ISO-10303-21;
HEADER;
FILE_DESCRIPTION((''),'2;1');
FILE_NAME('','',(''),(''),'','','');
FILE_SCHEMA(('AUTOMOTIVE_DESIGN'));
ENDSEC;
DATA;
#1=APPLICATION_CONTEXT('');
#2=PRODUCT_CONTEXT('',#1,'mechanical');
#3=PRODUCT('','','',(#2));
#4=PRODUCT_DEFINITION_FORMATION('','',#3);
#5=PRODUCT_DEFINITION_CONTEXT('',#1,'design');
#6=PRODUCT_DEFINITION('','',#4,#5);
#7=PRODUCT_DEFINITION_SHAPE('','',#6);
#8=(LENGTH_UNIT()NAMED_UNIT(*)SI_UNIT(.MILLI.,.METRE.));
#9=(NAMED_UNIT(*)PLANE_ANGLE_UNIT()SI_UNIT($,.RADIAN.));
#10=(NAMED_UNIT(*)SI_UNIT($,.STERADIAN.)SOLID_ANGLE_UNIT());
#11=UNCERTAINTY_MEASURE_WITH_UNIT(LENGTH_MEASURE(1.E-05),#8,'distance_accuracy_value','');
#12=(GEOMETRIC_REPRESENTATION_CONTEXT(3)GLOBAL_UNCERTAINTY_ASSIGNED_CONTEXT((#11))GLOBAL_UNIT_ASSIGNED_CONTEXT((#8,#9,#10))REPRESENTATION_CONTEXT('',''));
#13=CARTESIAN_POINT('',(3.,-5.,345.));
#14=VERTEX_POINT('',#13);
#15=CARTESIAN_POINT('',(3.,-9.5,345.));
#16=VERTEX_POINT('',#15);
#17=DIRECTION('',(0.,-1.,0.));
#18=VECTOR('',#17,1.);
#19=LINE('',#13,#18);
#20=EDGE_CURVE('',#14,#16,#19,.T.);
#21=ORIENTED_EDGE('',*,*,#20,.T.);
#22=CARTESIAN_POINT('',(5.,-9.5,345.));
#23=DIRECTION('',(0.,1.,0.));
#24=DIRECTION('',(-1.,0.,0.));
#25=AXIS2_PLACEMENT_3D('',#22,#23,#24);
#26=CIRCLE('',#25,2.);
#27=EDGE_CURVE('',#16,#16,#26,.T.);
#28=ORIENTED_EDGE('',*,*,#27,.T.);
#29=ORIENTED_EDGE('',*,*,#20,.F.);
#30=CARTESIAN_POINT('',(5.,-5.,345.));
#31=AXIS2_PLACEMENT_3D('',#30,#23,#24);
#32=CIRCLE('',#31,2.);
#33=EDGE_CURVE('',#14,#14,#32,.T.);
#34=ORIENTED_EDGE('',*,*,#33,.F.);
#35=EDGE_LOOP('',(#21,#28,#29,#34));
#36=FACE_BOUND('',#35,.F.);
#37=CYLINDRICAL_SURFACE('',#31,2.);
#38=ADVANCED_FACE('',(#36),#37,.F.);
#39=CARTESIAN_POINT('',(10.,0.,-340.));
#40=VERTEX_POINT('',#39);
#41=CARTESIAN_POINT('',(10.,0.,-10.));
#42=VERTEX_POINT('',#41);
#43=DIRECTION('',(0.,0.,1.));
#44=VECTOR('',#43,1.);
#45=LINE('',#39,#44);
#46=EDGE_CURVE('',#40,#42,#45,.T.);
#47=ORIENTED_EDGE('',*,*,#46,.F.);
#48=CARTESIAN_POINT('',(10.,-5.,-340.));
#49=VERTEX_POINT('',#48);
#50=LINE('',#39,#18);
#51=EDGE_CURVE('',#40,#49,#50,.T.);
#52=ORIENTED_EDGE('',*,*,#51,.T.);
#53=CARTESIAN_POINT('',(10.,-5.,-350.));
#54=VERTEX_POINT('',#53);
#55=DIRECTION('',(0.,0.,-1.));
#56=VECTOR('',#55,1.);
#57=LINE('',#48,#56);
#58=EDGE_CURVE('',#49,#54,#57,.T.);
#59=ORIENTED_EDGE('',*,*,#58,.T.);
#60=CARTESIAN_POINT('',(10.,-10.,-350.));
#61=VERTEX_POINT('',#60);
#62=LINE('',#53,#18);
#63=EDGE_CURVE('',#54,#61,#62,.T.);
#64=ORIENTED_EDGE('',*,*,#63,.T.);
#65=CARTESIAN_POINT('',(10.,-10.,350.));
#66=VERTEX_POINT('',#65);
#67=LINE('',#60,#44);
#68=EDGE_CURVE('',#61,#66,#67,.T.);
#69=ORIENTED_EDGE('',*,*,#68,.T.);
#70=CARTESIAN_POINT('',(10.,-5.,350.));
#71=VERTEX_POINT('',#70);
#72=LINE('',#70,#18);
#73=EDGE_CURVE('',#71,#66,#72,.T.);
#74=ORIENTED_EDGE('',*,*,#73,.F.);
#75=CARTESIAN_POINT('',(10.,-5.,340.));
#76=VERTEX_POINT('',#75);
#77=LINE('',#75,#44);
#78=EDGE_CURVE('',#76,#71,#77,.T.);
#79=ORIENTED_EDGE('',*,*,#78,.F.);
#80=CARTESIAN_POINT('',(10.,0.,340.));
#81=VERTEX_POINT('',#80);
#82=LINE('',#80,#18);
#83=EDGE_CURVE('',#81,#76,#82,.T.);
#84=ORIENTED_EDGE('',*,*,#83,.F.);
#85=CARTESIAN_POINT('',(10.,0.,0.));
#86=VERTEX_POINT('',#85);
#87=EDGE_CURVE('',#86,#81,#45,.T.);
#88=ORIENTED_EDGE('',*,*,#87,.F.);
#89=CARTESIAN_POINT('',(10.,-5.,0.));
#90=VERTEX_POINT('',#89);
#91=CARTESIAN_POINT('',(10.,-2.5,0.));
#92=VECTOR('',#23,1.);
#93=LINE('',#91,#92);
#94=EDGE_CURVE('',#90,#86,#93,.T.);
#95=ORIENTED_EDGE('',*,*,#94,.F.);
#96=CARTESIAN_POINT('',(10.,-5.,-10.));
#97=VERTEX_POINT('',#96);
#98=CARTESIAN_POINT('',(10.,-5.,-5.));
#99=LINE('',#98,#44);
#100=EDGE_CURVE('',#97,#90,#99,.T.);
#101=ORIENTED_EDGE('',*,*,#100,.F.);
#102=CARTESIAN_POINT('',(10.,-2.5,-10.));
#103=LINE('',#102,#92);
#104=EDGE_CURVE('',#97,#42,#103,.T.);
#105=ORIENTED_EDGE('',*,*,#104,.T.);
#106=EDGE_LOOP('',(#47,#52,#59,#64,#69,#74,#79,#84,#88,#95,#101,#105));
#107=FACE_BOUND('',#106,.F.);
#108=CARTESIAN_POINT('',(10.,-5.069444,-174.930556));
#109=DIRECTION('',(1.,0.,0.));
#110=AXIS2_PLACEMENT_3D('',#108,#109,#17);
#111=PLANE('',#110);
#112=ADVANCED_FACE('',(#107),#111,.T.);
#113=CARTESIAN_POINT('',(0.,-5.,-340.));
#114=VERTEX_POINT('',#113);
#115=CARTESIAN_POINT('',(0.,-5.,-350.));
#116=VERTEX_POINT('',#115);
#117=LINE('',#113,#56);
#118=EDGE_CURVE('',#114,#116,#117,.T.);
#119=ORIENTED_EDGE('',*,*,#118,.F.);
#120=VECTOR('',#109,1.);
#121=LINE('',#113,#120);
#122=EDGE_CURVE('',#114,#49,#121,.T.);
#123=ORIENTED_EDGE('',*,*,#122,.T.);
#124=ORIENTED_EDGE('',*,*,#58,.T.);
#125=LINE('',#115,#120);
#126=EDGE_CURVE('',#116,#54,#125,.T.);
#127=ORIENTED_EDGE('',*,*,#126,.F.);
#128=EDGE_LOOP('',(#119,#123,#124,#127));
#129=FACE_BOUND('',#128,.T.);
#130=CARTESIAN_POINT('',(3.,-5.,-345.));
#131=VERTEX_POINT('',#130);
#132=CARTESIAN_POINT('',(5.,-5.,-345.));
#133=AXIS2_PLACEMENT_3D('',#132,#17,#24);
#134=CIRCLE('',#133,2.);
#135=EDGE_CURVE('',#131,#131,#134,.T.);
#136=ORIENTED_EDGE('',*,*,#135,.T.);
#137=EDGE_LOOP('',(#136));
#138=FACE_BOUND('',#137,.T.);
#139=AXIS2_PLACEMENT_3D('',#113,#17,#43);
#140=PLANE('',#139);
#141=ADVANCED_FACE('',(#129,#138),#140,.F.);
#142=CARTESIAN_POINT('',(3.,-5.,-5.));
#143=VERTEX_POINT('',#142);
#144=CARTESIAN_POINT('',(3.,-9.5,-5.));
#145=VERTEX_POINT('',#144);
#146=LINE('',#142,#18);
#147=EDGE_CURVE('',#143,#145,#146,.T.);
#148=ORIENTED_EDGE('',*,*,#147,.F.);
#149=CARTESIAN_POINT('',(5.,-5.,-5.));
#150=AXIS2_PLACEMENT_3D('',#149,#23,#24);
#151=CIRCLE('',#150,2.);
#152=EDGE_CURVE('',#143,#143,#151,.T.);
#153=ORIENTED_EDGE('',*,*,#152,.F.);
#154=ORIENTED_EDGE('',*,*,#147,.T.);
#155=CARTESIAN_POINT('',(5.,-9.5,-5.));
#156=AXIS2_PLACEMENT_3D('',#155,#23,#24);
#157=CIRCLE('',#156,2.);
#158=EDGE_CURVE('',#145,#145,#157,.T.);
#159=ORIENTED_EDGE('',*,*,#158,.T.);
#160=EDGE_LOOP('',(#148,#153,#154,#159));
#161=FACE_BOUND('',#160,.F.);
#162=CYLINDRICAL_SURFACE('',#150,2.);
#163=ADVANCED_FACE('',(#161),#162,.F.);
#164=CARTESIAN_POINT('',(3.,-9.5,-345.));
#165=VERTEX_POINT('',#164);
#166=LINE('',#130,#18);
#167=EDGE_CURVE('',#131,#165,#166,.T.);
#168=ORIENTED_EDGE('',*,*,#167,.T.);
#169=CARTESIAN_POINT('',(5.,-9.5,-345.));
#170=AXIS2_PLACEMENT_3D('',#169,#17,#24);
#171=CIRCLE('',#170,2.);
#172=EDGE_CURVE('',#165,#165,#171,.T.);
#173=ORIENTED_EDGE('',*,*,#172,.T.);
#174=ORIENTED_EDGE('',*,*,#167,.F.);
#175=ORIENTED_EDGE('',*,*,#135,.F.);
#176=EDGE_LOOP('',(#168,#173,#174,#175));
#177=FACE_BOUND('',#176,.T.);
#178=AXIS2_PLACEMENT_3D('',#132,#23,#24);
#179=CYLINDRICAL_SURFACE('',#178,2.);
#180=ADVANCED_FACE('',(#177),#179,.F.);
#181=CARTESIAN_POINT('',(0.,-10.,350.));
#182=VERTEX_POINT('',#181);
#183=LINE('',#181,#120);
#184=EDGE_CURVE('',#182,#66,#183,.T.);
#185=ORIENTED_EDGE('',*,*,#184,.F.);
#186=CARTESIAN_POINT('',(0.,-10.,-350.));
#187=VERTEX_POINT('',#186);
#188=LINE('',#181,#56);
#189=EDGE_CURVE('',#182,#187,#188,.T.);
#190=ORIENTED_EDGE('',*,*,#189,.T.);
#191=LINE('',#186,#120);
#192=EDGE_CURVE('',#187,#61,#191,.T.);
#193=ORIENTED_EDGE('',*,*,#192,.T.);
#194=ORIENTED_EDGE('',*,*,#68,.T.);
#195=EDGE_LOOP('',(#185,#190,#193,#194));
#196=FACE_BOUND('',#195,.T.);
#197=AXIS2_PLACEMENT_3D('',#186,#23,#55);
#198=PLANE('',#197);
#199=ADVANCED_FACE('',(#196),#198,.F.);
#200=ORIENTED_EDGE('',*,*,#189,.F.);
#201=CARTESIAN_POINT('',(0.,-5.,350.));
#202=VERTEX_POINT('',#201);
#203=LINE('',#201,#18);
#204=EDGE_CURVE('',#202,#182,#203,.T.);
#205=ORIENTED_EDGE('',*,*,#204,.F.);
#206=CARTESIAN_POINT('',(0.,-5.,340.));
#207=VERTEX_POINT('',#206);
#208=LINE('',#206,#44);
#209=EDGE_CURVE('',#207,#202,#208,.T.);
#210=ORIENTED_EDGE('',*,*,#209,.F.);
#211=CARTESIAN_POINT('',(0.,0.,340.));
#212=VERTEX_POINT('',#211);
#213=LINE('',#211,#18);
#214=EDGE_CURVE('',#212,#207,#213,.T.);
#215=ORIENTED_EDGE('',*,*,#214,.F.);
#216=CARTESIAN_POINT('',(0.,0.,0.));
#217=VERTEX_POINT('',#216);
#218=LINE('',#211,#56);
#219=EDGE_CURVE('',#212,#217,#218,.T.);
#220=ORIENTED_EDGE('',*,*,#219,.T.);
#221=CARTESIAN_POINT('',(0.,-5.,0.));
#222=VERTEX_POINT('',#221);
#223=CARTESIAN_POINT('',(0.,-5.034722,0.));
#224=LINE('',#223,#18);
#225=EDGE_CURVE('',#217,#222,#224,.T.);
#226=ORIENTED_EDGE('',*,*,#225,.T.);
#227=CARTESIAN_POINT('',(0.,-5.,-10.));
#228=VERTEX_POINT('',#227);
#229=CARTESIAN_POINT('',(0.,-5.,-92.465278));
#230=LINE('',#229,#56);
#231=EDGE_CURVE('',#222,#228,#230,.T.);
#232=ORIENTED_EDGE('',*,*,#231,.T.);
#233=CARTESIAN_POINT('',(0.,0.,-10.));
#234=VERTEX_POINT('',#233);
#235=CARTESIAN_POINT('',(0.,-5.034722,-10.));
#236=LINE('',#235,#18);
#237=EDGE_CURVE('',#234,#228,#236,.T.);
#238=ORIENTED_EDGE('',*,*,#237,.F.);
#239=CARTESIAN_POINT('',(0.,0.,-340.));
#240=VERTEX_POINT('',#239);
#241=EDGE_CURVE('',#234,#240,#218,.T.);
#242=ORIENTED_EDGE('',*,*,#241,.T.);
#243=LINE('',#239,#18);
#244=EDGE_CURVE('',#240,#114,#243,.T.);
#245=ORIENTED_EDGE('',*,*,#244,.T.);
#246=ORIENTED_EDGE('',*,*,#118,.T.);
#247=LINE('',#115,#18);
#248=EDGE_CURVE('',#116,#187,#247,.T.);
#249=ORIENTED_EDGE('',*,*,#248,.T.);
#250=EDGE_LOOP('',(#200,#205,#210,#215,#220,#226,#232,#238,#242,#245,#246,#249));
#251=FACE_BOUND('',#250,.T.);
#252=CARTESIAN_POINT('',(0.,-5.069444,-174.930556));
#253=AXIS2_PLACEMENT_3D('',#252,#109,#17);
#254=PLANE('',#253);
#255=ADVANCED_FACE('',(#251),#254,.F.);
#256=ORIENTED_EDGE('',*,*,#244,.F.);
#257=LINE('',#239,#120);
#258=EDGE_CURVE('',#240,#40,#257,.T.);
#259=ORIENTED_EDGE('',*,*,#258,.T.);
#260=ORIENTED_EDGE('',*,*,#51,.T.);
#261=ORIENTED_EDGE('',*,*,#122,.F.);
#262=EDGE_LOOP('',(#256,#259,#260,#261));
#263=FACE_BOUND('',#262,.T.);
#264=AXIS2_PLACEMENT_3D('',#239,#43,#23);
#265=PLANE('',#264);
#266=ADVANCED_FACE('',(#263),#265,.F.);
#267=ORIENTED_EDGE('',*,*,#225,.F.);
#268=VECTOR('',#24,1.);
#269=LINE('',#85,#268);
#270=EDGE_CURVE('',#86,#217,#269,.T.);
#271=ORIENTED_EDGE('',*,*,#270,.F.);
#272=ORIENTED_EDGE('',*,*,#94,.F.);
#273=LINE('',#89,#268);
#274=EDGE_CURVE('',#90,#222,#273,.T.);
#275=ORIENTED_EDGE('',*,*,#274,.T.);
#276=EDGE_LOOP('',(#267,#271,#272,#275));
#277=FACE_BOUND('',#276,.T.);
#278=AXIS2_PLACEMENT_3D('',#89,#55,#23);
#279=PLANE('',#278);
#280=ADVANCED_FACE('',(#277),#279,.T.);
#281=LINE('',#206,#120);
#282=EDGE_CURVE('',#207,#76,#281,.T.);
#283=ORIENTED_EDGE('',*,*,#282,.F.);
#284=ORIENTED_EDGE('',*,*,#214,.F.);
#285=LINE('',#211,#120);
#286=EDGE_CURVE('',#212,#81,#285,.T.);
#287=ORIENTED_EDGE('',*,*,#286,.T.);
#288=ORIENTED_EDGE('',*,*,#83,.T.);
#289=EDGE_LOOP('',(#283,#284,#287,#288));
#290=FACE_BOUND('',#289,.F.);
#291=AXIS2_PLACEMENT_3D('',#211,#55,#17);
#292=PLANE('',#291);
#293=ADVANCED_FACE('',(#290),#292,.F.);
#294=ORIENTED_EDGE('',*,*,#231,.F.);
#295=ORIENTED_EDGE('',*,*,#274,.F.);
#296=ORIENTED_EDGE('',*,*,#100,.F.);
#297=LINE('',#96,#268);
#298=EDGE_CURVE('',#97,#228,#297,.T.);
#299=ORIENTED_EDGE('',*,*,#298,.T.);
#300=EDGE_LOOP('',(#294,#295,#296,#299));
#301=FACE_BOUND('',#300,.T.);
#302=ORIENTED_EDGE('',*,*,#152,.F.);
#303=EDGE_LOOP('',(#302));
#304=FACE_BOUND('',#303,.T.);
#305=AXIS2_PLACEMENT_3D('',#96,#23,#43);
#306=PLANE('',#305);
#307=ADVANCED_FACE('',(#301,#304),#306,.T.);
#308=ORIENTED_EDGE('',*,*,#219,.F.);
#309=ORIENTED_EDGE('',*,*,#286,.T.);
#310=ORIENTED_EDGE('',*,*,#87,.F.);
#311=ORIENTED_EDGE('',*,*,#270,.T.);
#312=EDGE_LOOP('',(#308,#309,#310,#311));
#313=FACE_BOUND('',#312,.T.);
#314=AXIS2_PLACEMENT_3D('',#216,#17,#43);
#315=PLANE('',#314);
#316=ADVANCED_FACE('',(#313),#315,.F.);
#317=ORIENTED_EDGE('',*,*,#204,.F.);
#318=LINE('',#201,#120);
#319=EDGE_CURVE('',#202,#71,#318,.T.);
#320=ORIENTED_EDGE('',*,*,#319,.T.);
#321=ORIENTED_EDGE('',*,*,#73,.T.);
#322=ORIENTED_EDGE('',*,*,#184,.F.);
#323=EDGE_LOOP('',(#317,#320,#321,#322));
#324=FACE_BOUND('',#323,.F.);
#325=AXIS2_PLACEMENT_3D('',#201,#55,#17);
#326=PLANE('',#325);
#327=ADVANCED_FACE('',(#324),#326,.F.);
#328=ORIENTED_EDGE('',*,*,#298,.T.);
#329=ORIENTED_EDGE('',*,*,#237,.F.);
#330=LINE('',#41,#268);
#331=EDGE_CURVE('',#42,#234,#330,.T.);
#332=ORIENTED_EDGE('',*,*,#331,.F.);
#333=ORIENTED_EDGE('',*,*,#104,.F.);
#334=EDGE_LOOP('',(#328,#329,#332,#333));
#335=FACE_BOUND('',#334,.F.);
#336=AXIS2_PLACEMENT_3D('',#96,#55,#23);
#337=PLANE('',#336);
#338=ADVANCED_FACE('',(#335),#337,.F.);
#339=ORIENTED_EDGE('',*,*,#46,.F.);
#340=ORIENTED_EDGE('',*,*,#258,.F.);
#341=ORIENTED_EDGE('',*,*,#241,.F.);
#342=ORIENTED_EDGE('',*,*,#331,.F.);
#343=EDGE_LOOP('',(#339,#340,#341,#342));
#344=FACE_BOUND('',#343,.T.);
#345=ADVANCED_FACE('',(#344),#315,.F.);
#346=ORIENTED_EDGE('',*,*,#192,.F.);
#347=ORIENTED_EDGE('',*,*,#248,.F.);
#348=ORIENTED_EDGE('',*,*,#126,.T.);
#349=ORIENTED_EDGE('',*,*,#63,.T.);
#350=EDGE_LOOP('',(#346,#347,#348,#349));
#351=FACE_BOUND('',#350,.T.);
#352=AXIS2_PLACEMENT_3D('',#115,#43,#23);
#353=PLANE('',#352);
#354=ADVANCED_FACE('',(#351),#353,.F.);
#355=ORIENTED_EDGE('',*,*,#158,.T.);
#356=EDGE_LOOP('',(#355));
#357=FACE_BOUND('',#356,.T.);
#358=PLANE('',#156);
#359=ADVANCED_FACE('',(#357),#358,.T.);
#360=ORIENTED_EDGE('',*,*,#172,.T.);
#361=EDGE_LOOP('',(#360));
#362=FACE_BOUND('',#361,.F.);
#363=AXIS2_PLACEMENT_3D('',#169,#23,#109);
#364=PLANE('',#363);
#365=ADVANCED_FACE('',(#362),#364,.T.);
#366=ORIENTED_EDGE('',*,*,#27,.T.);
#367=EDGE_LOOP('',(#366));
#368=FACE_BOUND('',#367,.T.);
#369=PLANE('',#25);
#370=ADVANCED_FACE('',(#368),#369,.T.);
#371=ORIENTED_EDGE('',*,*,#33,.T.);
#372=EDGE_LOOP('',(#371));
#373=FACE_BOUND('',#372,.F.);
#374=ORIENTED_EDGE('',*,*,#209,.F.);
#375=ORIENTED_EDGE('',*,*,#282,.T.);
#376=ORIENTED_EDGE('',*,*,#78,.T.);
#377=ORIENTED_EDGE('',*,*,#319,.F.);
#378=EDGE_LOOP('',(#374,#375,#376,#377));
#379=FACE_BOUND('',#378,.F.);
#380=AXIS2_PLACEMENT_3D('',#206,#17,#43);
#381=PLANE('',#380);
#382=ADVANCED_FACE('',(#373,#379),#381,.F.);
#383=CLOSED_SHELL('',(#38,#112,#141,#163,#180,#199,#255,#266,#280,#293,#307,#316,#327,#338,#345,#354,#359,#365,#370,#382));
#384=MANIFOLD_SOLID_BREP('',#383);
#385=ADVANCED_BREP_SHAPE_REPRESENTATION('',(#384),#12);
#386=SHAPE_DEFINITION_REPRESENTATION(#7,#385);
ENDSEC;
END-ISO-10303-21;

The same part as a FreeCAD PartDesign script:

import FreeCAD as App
import Part
import Sketcher
from FreeCAD import Vector
Q = App.Units.Quantity


def add_polygon(sketch, points):
    """Adds a closed chain of lines whose ends are joined by coincident constraints."""
    first, n = sketch.GeometryCount, len(points)
    for a, b in zip(points, points[1:] + points[:1]):
        sketch.addGeometry(Part.LineSegment(App.Vector(*a, 0), App.Vector(*b, 0)), False)
    for i in range(n):
        sketch.addConstraint(Sketcher.Constraint("Coincident", first + i, 2, first + (i + 1) % n, 1))

doc = App.newDocument("Part")
body = doc.addObject("PartDesign::Body", "Body")

sketch1 = body.newObject("Sketcher::SketchObject", "Sketch")
sketch1.AttachmentSupport = (doc.getObject("YZ_Plane"), [""])
sketch1.MapMode = "FlatFace"
add_polygon(sketch1, [(-10, 0), (0, 0), (0, 340), (-5, 340), (-5, 350), (-10, 350)])
sketch1.addConstraint([
    Sketcher.Constraint("Horizontal", 0),
    Sketcher.Constraint("Vertical", 1),
    Sketcher.Constraint("Horizontal", 2),
    Sketcher.Constraint("Vertical", 3),
    Sketcher.Constraint("Horizontal", 4),
    Sketcher.Constraint("Vertical", 5),
    Sketcher.Constraint("Coincident", 0, 2, -1, 1),
    Sketcher.Constraint("Equal", 2, 4),
    Sketcher.Constraint("Equal", 0, 3),
    Sketcher.Constraint("DistanceX", 0, 1, 0, 2, Q("10 mm")),
    Sketcher.Constraint("DistanceY", 1, 1, 1, 2, Q("340 mm")),
])
pad1 = body.newObject("PartDesign::Pad", "Pad")
pad1.Profile = sketch1
pad1.Length = 10

sketch2 = body.newObject("Sketcher::SketchObject", "Sketch001")
sketch2.AttachmentSupport = (doc.getObject("XZ_Plane"), [""])
sketch2.MapMode = "FlatFace"
sketch2.AttachmentOffset = App.Placement(Vector(0, 0, 5), App.Rotation())
sketch2.addGeometry(Part.Circle(Vector(5, 345, 0), Vector(0, 0, 1), 2), False)
sketch2.addConstraint([
    Sketcher.Constraint("Diameter", 0, Q("4 mm")),
    Sketcher.Constraint("DistanceX", -1, 1, 0, 3, Q("5 mm")),
    Sketcher.Constraint("DistanceY", -1, 1, 0, 3, Q("345 mm")),
])
pocket1 = body.newObject("PartDesign::Pocket", "Pocket")
pocket1.Profile = sketch2
pocket1.Length = 4.5
pocket1.Reversed = True
body2 = doc.addObject("PartDesign::Body", "Body001")
doc.recompute()

body2.BaseFeature = body
doc.recompute()

mirroring = doc.addObject("Part::Mirroring", "Mirroring")
mirroring.Source = body
mirroring.Base = Vector(0, 0, 0)
mirroring.Normal = Vector(0, 0, 1)
body3 = doc.addObject("PartDesign::Body", "Body002")
body3.BaseFeature = mirroring
boolean = body2.newObject("PartDesign::Boolean", "Boolean")
boolean.Type = "Fuse"
boolean.addObjects([body3])
doc.recompute()

sketch3 = body2.newObject("Sketcher::SketchObject", "Sketch002")
sketch3.AttachmentSupport = (doc.getObject("YZ_Plane001"), [""])
sketch3.MapMode = "FlatFace"
sketch3.AttachmentOffset = App.Placement(Vector(0, 0, 10), App.Rotation())
add_polygon(sketch3, [(-5, 0), (-5, -10), (0, -10), (0, 0)])
sketch3.addConstraint([
    Sketcher.Constraint("Vertical", 0),
    Sketcher.Constraint("Horizontal", 1),
    Sketcher.Constraint("Vertical", 2),
    Sketcher.Constraint("Horizontal", 3),
    Sketcher.Constraint("Coincident", 2, 2, -1, 1),
    Sketcher.Constraint("DistanceX", 1, 1, 1, 2, Q("5 mm")),
    Sketcher.Constraint("DistanceY", 0, 2, 0, 1, Q("10 mm")),
])
pocket2 = body2.newObject("PartDesign::Pocket", "Pocket001")
pocket2.Profile = sketch3
pocket2.Type = "ThroughAll"

sketch4 = body2.newObject("Sketcher::SketchObject", "Sketch003")
sketch4.AttachmentSupport = (doc.getObject("XZ_Plane001"), [""])
sketch4.MapMode = "FlatFace"
sketch4.AttachmentOffset = App.Placement(Vector(0, 0, 5), App.Rotation())
sketch4.addGeometry(Part.Circle(Vector(5, -5, 0), Vector(0, 0, 1), 2), False)
sketch4.addConstraint([
    Sketcher.Constraint("Diameter", 0, Q("4 mm")),
    Sketcher.Constraint("DistanceX", -1, 1, 0, 3, Q("5 mm")),
    Sketcher.Constraint("DistanceY", 0, 3, -1, 1, Q("5 mm")),
])
pocket3 = body2.newObject("PartDesign::Pocket", "Pocket002")
pocket3.Profile = sketch4
pocket3.Length = 4.5
pocket3.Reversed = True
mirroring.Visibility = False

doc.recompute()
